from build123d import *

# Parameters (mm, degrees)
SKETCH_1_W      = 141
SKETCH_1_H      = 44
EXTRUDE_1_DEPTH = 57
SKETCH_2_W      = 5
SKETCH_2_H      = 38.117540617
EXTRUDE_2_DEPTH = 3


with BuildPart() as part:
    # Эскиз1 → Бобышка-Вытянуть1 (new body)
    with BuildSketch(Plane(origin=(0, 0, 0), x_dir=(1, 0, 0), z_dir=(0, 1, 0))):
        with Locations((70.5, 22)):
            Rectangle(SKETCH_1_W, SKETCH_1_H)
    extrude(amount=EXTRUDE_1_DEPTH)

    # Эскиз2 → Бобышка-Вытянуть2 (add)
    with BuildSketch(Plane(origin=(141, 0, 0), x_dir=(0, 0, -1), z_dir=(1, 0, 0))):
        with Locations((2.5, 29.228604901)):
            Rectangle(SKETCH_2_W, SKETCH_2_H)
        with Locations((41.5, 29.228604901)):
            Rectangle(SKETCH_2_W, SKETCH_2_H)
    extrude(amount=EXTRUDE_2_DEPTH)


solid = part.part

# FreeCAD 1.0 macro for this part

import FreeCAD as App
import Part
import Sketcher

V = App.Vector
Q = App.Units.Quantity


def add_polygon(sketch, points):
    """Adds a closed chain of lines whose ends are joined by coincident constraints."""
    first, n = sketch.GeometryCount, len(points)
    for a, b in zip(points, points[1:] + points[:1]):
        sketch.addGeometry(Part.LineSegment(App.Vector(*a, 0), App.Vector(*b, 0)), False)
    for i in range(n):
        sketch.addConstraint(Sketcher.Constraint("Coincident", first + i, 2, first + (i + 1) % n, 1))

doc = App.newDocument("Part")
body = doc.addObject("PartDesign::Body", "Body")

# Sketch on XZ plane
sketch1 = body.newObject("Sketcher::SketchObject", "Sketch")
sketch1.AttachmentSupport = (doc.getObject("XZ_Plane"), [""])
sketch1.MapMode = "FlatFace"
add_polygon(sketch1, [(0, -44), (0, 0), (141, 0), (141, -44)])  # lines 0-3
sketch1.addConstraint([
    Sketcher.Constraint("Vertical", 0),
    Sketcher.Constraint("Horizontal", 1),
    Sketcher.Constraint("Vertical", 2),
    Sketcher.Constraint("Horizontal", 3),
    Sketcher.Constraint("Coincident", 0, 2, -1, 1),
    Sketcher.Constraint("DistanceX", 1, 1, 1, 2, Q("141 mm")),
    Sketcher.Constraint("DistanceY", 0, 1, 0, 2, Q("44 mm")),
])
pad1 = body.newObject("PartDesign::Pad", "Pad")
pad1.Profile = sketch1
pad1.Length = 57
pad1.Reversed = True

# Sketch on YZ plane
sketch2 = body.newObject("Sketcher::SketchObject", "Sketch001")
sketch2.AttachmentSupport = (doc.getObject("YZ_Plane"), [""])
sketch2.MapMode = "FlatFace"
sketch2.AttachmentOffset = App.Placement(V(0, 0, 141), App.Rotation())
add_polygon(sketch2, [(48, 0), (10, 0), (10, -5), (48, -5)])  # lines 0-3
add_polygon(sketch2, [(48, -39), (10, -39), (10, -44), (48, -44)])  # lines 4-7
sketch2.addConstraint([
    Sketcher.Constraint("Horizontal", 0),
    Sketcher.Constraint("Vertical", 1),
    Sketcher.Constraint("Horizontal", 2),
    Sketcher.Constraint("Vertical", 3),
    Sketcher.Constraint("Horizontal", 4),
    Sketcher.Constraint("Vertical", 5),
    Sketcher.Constraint("Horizontal", 6),
    Sketcher.Constraint("Vertical", 7),
    Sketcher.Constraint("PointOnObject", 0, 2, -1),
    Sketcher.Constraint("Vertical", 1, 2, 4, 2),
    Sketcher.Constraint("Vertical", 3, 2, 6, 2),
    Sketcher.Constraint("Equal", 3, 5),
    Sketcher.Constraint("DistanceY", 1, 2, 1, 1, Q("5 mm")),
    Sketcher.Constraint("DistanceY", 4, 2, -1, 1, Q("39 mm")),
    Sketcher.Constraint("DistanceX", 0, 2, 0, 1, Q("38.117541 mm")),
    Sketcher.Constraint("DistanceX", -1, 1, 0, 2, Q("10.169835 mm")),
])
pad2 = body.newObject("PartDesign::Pad", "Pad001")
pad2.Profile = sketch2
pad2.Length = 3

doc.recompute()
